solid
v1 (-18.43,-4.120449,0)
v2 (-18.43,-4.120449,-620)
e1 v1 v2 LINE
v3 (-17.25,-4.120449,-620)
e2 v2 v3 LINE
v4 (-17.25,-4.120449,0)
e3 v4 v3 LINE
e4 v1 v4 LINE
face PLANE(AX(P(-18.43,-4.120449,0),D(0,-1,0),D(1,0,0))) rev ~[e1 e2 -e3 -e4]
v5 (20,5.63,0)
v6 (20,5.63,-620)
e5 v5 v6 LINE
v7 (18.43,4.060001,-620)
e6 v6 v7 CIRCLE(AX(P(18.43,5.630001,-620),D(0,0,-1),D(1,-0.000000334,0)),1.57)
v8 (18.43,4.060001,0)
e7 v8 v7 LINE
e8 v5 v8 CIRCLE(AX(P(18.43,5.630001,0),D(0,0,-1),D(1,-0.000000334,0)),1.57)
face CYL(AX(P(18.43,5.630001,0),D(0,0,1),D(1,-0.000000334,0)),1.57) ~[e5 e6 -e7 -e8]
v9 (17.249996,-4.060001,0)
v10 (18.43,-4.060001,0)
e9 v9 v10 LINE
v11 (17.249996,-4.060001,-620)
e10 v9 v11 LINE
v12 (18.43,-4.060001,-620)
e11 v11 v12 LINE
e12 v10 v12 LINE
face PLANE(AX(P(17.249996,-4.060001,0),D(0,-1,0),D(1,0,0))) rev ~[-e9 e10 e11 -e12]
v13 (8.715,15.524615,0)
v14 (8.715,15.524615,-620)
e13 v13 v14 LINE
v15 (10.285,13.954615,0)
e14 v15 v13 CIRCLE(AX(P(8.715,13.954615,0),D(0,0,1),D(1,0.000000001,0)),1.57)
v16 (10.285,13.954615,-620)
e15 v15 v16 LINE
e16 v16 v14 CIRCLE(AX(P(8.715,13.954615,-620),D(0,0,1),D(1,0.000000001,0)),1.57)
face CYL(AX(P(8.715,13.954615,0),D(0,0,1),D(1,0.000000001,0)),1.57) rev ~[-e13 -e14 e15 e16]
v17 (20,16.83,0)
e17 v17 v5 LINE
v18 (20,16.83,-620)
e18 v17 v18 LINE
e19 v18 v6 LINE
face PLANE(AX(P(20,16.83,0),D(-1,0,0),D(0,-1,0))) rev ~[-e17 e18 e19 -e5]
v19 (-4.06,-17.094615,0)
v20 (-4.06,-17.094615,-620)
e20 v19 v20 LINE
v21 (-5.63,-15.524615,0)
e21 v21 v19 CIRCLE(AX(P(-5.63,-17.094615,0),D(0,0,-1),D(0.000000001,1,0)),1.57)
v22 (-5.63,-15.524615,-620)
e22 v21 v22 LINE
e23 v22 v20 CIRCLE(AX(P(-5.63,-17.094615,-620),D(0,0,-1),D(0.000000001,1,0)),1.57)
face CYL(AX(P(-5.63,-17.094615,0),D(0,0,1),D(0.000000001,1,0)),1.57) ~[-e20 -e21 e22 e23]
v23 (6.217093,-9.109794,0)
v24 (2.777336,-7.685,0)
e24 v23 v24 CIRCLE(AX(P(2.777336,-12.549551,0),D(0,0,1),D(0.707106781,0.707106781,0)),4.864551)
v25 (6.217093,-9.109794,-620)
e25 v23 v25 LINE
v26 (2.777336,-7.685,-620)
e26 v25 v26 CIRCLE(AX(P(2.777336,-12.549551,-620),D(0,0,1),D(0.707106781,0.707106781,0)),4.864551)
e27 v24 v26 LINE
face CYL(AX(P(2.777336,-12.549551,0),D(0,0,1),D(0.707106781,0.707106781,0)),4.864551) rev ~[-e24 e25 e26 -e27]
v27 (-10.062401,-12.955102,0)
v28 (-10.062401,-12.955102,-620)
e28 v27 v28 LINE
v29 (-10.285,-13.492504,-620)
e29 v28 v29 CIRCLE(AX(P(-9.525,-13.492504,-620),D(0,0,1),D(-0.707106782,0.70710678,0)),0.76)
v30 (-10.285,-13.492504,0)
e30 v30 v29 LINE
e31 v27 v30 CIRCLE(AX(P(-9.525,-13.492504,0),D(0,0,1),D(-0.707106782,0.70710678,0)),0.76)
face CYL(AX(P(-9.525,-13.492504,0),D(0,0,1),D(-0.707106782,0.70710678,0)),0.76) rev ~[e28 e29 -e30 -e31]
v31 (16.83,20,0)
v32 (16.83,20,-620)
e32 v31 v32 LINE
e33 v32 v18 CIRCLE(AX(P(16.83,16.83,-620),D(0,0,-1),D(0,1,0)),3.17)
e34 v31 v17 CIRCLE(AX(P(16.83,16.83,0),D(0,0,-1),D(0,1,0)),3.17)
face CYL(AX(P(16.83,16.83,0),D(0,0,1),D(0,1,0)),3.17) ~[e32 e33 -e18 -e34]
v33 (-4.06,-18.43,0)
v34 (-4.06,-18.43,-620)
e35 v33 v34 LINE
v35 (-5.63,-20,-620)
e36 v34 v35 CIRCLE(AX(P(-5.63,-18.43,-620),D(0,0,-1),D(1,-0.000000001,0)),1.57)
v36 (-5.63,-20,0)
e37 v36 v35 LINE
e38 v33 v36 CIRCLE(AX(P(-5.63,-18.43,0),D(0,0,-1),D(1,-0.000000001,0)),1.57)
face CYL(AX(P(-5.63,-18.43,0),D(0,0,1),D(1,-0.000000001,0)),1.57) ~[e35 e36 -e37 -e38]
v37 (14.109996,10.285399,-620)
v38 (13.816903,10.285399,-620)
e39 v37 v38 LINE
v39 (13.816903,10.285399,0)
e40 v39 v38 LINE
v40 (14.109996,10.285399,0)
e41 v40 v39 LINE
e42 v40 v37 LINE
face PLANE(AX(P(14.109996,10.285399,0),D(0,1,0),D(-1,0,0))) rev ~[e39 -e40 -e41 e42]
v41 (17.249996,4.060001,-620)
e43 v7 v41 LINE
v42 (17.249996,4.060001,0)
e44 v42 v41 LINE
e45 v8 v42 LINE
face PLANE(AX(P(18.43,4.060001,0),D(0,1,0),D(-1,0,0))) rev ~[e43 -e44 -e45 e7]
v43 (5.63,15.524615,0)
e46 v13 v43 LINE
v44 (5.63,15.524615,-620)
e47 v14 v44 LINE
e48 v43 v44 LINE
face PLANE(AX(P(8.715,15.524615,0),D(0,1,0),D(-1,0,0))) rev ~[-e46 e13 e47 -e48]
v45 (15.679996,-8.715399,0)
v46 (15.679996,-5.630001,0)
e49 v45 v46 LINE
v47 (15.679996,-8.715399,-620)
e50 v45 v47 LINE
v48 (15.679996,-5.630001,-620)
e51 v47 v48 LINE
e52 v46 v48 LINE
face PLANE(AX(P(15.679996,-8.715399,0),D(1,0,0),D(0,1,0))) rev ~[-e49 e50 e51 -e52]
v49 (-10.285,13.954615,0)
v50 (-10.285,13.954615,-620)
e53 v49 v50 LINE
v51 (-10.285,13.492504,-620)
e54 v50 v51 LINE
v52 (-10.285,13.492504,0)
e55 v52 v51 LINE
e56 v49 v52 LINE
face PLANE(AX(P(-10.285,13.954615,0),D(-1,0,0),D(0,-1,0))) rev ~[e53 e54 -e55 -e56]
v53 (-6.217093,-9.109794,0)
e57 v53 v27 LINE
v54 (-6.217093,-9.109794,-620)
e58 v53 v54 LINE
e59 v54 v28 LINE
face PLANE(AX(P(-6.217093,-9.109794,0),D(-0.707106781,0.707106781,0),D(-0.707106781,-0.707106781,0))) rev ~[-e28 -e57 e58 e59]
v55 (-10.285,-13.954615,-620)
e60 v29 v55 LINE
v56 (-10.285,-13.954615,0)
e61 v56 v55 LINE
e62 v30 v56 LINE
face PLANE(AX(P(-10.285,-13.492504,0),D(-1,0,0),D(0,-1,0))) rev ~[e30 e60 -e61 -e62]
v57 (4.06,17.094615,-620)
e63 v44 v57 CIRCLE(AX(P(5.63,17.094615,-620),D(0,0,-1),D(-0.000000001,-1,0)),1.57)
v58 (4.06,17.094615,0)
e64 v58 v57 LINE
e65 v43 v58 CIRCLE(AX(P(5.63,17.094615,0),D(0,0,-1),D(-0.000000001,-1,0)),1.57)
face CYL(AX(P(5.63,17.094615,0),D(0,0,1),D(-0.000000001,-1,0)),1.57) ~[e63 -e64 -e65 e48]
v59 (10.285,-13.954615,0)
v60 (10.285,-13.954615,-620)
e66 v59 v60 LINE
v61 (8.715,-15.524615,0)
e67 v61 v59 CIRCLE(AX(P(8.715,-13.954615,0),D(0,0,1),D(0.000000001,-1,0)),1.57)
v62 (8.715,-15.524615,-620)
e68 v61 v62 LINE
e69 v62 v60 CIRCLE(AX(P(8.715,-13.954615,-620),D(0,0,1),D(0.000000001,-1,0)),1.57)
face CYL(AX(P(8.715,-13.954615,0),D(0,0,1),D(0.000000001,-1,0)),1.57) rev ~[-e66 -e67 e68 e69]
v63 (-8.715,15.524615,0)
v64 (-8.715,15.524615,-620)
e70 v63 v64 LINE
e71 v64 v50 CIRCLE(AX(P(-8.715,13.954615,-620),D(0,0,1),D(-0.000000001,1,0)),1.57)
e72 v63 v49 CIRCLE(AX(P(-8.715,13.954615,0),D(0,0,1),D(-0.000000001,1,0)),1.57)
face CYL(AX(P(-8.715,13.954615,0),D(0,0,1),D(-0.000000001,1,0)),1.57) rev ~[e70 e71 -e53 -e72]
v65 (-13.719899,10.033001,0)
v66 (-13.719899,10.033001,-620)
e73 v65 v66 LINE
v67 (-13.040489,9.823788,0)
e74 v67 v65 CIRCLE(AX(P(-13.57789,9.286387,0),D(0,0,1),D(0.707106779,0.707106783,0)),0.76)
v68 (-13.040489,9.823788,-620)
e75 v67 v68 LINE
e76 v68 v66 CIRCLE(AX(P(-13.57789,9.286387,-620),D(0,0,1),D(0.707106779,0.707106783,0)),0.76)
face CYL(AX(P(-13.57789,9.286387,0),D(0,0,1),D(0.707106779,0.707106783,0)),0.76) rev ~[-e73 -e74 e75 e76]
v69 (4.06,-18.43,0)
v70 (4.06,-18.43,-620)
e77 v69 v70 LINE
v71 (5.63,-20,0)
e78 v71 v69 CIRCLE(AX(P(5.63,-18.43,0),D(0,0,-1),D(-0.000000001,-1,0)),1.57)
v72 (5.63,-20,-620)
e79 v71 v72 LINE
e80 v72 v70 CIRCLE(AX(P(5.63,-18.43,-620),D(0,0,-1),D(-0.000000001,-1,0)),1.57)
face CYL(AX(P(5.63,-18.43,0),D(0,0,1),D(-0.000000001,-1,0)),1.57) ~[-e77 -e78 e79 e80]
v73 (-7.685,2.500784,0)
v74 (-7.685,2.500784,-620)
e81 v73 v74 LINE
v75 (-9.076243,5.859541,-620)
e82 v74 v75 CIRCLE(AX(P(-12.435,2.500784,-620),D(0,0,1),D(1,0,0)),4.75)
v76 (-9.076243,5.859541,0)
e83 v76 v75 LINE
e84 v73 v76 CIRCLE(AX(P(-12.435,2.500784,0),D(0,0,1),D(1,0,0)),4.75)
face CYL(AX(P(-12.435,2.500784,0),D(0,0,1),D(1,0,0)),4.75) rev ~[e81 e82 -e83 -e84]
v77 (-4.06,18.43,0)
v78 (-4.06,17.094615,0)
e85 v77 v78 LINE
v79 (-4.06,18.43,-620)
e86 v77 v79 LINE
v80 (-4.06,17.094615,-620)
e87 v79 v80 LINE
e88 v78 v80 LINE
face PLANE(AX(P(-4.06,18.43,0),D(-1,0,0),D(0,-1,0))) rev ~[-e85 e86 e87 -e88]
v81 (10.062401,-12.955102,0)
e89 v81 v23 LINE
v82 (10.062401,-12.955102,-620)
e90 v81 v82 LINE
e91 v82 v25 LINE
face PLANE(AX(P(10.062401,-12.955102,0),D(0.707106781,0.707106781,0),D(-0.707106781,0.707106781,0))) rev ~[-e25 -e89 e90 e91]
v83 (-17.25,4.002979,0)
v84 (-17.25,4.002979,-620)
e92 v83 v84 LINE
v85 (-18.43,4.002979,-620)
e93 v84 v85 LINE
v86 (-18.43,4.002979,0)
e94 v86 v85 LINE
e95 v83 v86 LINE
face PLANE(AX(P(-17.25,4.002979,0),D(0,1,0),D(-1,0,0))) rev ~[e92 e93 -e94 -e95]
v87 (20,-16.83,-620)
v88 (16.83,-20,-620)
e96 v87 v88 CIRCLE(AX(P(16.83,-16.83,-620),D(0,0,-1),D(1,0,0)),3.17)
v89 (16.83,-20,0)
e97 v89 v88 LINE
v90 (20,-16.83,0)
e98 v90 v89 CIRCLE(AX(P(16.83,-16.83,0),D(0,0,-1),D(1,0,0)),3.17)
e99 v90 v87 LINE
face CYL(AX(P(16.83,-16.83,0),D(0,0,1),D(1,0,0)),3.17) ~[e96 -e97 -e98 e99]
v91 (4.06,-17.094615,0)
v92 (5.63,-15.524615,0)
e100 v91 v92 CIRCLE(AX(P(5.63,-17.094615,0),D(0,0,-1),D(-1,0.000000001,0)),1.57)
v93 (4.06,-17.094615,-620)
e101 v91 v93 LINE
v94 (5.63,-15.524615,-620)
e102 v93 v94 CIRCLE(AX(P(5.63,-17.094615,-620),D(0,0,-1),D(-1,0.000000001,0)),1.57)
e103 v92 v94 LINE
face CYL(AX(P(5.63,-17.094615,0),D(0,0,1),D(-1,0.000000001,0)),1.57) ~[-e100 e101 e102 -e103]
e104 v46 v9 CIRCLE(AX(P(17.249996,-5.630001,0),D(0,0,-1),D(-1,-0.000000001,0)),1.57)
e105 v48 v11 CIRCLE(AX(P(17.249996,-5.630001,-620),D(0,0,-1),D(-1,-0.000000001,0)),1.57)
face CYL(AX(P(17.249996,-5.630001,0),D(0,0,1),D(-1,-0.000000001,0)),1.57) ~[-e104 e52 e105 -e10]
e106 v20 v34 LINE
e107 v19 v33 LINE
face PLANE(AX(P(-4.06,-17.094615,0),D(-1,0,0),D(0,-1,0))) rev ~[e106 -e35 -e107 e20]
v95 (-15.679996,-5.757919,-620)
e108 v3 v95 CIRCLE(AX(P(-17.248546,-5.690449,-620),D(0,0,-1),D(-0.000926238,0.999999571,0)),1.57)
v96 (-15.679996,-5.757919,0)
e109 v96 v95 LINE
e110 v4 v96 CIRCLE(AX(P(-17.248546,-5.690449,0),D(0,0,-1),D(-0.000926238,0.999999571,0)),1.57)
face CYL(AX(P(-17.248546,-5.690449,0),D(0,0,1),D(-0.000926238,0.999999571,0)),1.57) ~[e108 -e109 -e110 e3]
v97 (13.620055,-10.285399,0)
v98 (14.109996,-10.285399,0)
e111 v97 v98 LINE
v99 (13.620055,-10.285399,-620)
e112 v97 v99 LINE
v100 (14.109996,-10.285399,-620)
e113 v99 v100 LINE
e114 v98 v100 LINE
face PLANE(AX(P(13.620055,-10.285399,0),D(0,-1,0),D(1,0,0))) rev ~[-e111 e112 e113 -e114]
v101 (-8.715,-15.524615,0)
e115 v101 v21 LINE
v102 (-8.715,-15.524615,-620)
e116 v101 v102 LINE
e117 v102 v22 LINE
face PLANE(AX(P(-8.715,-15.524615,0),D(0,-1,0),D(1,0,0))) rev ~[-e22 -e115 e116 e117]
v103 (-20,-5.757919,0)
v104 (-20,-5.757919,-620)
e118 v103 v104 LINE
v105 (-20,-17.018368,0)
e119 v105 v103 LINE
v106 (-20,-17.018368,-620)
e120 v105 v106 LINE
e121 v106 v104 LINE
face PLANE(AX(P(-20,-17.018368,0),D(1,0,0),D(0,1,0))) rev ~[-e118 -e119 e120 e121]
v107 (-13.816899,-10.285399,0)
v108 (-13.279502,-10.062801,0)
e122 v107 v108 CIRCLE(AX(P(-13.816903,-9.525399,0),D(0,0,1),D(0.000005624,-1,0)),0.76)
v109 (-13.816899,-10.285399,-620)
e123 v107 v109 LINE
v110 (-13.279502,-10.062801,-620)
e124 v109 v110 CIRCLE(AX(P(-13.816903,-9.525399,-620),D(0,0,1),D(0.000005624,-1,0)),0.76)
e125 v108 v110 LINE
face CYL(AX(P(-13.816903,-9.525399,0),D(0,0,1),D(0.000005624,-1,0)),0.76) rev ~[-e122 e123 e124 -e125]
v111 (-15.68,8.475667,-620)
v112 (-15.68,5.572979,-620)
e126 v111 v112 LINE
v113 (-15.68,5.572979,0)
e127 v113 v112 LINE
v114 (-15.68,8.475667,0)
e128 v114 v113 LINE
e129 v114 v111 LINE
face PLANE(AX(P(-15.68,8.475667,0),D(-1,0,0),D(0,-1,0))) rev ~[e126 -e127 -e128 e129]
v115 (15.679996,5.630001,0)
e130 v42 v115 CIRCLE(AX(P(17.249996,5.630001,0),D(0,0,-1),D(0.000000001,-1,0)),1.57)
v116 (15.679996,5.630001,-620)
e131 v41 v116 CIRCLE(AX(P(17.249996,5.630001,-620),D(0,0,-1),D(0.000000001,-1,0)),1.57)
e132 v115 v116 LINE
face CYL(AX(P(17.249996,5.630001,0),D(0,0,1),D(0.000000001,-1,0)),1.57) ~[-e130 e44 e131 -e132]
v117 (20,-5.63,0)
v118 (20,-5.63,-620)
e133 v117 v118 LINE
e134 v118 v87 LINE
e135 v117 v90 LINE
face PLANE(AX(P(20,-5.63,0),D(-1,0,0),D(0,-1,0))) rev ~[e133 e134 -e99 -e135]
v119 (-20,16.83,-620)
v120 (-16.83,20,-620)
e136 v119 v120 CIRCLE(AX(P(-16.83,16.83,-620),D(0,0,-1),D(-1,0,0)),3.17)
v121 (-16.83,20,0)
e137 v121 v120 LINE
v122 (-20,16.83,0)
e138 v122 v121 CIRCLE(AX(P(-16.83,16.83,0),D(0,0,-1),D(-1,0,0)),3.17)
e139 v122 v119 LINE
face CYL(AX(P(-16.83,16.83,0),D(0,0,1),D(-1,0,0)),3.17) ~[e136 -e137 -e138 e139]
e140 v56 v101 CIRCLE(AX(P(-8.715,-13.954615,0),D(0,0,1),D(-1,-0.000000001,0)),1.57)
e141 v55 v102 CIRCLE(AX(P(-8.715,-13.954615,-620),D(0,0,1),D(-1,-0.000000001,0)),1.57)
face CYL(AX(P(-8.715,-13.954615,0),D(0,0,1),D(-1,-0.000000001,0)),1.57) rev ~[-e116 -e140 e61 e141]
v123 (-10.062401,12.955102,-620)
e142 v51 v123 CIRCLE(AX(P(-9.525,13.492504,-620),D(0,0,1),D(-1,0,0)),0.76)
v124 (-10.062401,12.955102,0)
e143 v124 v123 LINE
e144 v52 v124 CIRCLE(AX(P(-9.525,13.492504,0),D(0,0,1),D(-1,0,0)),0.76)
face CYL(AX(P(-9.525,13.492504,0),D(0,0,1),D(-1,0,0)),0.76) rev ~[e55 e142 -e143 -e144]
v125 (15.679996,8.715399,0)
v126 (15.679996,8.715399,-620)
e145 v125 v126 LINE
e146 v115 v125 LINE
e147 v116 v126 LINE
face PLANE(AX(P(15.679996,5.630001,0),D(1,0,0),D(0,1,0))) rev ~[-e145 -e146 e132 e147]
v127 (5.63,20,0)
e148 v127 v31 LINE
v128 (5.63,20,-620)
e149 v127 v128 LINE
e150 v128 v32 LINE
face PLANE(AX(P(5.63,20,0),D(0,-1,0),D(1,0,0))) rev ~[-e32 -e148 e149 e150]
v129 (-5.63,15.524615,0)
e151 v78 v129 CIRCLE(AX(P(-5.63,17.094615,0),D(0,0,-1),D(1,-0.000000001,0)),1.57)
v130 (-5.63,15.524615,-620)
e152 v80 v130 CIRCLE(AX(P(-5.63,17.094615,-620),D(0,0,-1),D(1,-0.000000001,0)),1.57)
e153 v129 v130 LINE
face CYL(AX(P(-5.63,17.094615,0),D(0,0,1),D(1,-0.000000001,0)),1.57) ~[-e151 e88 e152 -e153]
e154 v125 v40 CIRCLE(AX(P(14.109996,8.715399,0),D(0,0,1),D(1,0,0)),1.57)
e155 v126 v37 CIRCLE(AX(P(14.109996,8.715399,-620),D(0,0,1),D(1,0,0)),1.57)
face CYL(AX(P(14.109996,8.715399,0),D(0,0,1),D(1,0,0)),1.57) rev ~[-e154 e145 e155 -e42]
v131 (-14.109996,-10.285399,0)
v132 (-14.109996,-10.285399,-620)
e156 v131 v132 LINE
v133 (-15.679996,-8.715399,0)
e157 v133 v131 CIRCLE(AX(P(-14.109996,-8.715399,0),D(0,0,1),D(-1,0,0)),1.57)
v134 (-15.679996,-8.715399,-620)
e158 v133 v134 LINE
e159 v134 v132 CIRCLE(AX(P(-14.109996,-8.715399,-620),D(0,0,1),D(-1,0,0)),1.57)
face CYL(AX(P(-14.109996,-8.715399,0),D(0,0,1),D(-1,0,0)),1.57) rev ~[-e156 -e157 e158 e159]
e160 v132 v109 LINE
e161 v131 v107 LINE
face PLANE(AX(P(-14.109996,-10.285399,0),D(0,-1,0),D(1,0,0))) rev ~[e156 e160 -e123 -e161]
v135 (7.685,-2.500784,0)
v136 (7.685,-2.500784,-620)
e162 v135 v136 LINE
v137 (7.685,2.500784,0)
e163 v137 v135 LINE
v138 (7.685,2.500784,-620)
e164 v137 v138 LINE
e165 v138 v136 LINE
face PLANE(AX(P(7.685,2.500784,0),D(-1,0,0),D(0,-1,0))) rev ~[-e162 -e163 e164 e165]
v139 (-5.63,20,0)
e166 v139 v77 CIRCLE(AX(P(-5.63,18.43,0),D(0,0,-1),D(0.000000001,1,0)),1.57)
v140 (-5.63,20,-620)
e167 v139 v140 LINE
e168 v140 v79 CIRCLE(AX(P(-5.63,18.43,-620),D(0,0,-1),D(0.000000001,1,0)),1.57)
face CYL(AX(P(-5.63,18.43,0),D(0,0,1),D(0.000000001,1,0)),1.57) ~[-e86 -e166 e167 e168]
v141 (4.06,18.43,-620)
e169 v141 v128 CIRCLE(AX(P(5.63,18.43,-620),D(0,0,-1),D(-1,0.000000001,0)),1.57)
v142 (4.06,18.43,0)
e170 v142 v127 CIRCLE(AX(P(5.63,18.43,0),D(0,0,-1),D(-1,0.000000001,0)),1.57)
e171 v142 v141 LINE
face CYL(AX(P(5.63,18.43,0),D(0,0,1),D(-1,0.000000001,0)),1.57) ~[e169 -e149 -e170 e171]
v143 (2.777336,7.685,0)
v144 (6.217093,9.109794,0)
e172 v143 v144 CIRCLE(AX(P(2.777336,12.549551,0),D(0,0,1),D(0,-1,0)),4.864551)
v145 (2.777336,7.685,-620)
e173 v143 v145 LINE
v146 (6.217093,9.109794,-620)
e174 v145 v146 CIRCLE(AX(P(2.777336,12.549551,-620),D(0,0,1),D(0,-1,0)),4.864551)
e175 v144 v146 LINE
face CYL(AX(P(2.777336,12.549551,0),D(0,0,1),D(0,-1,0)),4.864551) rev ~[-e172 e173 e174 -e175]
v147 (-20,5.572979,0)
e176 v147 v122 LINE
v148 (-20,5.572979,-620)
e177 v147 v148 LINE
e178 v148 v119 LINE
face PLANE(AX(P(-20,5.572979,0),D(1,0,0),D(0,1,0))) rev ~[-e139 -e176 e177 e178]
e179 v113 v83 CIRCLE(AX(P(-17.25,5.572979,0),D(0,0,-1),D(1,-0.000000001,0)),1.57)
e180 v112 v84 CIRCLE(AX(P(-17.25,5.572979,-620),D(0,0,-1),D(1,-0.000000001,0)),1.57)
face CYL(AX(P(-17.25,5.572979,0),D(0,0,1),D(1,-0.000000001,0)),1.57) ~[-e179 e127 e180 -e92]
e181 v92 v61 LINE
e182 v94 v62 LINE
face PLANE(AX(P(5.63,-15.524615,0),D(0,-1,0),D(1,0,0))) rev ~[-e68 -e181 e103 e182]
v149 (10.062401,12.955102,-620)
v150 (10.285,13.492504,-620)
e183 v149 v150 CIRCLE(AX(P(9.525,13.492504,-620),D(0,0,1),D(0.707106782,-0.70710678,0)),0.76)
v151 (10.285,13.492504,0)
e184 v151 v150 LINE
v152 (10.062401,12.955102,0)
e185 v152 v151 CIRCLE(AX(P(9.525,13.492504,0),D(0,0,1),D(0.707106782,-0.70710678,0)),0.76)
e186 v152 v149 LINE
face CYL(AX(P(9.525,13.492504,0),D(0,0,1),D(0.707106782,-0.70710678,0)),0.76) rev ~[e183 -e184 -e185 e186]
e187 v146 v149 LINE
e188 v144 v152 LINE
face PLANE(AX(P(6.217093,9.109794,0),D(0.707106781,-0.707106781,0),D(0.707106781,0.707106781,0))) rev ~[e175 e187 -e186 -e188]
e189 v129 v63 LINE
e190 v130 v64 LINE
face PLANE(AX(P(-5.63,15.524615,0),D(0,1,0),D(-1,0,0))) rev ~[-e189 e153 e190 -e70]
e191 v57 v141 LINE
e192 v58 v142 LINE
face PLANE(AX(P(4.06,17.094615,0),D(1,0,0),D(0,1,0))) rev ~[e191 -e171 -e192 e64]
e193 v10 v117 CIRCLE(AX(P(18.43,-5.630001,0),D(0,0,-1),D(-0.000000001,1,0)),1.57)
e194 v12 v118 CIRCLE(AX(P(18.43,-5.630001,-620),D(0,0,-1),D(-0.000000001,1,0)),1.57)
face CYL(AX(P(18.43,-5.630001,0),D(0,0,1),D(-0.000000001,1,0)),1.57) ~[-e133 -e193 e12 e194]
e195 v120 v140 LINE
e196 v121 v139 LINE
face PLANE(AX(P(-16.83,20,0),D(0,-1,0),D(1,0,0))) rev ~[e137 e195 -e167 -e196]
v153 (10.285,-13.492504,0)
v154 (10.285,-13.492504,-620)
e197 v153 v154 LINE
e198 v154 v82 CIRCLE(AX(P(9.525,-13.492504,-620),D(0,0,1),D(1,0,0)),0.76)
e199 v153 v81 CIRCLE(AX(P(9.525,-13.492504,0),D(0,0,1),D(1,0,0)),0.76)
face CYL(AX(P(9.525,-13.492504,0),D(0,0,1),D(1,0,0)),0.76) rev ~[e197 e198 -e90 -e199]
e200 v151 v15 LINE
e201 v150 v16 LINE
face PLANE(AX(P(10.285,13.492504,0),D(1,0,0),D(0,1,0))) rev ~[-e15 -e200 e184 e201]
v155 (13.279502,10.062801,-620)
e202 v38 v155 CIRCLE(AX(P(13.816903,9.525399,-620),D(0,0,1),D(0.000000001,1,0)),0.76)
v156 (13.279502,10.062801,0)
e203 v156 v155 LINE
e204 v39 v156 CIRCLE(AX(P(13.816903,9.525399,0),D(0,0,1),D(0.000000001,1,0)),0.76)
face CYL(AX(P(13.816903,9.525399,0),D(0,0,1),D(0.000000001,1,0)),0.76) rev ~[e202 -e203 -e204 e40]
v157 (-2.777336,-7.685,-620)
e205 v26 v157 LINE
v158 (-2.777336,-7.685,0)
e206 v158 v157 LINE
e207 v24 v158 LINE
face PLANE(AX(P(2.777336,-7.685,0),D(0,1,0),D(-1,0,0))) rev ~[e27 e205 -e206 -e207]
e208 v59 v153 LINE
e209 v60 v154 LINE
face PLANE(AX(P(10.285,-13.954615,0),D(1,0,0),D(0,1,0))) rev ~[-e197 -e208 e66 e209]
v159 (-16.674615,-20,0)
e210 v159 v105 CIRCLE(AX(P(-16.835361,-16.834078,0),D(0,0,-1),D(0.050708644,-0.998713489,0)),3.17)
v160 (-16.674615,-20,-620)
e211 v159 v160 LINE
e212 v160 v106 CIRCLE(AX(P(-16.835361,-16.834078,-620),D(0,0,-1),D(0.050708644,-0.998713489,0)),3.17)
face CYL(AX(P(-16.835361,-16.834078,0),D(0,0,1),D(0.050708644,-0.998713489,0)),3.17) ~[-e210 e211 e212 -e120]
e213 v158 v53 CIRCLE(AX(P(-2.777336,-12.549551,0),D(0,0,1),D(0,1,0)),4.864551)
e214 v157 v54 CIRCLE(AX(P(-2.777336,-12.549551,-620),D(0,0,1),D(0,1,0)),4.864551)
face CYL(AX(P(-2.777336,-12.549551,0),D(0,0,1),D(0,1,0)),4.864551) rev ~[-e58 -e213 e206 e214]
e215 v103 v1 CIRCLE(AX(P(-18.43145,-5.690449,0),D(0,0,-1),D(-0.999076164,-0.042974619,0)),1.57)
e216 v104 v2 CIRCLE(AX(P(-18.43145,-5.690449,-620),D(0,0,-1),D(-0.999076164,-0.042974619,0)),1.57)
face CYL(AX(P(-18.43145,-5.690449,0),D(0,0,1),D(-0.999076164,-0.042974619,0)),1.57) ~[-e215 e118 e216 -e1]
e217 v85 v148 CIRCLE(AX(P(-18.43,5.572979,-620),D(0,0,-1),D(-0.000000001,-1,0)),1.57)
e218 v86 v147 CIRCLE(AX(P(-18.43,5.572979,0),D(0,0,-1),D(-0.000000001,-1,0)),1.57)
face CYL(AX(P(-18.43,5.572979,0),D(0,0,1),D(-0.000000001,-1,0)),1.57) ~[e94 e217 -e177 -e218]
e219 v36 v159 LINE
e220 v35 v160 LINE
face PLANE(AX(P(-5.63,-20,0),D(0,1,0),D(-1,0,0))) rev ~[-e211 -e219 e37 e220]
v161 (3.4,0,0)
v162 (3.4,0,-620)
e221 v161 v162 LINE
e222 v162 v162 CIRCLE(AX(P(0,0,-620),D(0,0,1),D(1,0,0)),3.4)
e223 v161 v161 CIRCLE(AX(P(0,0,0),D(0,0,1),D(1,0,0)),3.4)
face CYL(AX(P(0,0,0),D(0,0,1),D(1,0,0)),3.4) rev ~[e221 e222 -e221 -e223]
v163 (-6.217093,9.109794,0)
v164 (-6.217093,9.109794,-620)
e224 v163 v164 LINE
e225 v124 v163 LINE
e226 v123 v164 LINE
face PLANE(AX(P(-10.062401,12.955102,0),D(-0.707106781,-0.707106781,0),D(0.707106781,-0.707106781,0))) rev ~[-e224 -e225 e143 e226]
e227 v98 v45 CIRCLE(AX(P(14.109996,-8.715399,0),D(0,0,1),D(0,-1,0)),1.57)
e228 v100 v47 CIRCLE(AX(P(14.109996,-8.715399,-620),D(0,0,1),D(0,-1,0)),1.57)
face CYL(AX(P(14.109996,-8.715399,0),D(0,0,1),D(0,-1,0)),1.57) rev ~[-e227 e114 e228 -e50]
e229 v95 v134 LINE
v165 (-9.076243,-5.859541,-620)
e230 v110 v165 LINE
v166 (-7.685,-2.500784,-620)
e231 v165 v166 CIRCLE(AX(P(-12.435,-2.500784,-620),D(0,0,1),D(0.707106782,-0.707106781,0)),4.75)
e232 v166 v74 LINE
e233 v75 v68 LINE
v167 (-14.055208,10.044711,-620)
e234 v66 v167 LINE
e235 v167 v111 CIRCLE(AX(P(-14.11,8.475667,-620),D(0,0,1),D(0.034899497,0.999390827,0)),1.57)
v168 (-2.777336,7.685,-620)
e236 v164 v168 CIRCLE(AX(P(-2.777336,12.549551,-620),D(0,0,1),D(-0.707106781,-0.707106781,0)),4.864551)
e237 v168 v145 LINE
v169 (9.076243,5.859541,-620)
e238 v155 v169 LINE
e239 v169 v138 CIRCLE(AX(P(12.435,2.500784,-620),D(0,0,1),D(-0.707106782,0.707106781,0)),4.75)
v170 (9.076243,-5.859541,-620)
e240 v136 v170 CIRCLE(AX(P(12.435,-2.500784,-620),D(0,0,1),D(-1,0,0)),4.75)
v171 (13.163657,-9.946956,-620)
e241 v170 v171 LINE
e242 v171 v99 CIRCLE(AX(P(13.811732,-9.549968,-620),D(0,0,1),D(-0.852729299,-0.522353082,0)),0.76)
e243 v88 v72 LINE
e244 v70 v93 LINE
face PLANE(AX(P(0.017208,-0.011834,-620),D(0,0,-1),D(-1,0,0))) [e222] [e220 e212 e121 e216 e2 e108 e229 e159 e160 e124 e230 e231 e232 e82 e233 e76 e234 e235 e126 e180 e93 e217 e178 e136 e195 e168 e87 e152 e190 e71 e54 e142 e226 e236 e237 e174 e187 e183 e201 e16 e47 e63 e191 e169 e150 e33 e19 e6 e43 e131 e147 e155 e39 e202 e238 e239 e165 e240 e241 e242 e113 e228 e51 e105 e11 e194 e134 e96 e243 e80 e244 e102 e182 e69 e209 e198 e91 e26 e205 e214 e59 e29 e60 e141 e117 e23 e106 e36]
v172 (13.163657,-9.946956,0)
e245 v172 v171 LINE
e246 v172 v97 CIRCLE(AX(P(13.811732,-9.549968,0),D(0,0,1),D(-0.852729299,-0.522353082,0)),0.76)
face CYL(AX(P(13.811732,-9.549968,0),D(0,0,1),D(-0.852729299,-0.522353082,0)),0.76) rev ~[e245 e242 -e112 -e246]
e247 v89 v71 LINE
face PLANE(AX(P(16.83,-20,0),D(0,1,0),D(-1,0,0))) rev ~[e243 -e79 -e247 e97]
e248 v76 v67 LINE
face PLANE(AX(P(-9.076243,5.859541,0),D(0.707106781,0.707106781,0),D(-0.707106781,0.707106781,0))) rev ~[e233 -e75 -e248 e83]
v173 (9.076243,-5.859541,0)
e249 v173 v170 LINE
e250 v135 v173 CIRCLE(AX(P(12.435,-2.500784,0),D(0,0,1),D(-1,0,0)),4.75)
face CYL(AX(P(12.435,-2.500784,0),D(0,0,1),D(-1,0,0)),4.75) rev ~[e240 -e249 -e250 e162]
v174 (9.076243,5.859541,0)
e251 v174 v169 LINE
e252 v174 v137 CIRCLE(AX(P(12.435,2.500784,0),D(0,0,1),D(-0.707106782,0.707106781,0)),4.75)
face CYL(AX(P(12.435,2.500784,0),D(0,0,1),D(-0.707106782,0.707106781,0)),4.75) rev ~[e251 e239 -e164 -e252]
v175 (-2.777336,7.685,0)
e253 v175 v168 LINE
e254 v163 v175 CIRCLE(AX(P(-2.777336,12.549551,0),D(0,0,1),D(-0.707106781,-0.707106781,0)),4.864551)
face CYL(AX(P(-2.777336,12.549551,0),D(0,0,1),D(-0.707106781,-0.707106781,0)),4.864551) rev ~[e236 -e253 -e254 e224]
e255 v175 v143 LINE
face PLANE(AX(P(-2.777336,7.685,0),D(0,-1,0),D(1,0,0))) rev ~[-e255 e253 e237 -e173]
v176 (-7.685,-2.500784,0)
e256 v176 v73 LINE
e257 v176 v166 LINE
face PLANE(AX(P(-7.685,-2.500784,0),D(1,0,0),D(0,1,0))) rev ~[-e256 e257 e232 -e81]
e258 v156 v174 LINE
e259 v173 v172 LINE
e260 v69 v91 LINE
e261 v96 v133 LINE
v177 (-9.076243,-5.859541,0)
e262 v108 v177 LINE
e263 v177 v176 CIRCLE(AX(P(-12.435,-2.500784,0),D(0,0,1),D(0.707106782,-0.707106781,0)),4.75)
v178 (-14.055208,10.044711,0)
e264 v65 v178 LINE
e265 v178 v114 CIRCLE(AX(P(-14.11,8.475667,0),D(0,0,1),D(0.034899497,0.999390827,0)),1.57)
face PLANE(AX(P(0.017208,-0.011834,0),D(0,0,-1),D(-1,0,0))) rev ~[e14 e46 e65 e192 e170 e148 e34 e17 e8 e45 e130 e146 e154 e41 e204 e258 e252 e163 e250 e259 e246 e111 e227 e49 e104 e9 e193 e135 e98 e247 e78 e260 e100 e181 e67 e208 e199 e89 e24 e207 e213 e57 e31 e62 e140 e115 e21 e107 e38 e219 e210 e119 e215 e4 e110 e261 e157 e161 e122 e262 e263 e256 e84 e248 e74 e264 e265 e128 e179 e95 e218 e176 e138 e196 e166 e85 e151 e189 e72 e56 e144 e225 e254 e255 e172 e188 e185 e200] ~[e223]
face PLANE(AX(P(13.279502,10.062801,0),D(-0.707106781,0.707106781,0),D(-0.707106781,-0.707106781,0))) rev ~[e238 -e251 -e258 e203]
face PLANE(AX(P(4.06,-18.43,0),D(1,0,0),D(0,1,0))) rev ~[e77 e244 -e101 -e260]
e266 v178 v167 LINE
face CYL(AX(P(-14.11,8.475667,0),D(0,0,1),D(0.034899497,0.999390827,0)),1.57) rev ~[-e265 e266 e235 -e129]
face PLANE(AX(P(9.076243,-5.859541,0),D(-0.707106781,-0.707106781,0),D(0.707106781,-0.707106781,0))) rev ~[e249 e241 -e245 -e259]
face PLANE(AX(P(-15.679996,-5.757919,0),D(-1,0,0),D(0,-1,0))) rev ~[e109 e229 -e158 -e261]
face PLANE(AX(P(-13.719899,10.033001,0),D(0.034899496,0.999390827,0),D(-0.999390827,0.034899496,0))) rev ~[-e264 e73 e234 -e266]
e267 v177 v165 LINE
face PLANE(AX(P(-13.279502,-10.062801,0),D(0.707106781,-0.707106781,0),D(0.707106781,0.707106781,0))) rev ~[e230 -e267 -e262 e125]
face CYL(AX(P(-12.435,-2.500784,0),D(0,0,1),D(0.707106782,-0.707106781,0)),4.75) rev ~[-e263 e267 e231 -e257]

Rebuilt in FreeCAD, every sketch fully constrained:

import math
import FreeCAD as App
import Part
import Sketcher

V = App.Vector
Q = App.Units.Quantity

doc = App.newDocument("Part")
body = doc.addObject("PartDesign::Body", "Body")

# Sketch on XY plane
sketch1 = body.newObject("Sketcher::SketchObject", "Sketch")
sketch1.AttachmentSupport = (doc.getObject("XY_Plane"), [""])
sketch1.MapMode = "FlatFace"
sketch1.addGeometry([
    Part.LineSegment(V(-5.63, -15.52, 0), V(-8.71, -15.52, 0)),  # 0
    Part.ArcOfCircle(Part.Circle(V(-8.71, -13.95, 0), V(0, 0, 1), 1.57), math.radians(-180), math.radians(-90)),  # 1
    Part.LineSegment(V(-10.29, -13.95, 0), V(-10.29, -13.49, 0)),  # 2
    Part.ArcOfCircle(Part.Circle(V(-9.52, -13.49, 0), V(0, 0, 1), 0.76), math.radians(135), math.radians(180)),  # 3
    Part.LineSegment(V(-10.06, -12.96, 0), V(-6.22, -9.11, 0)),  # 4
    Part.ArcOfCircle(Part.Circle(V(-2.78, -12.55, 0), V(0, 0, 1), 4.86), math.radians(90), math.radians(135)),  # 5
    Part.LineSegment(V(-2.78, -7.68, 0), V(2.78, -7.68, 0)),  # 6
    Part.ArcOfCircle(Part.Circle(V(2.78, -12.55, 0), V(0, 0, 1), 4.86), math.radians(45), math.radians(90)),  # 7
    Part.LineSegment(V(6.22, -9.11, 0), V(10.06, -12.96, 0)),  # 8
    Part.ArcOfCircle(Part.Circle(V(9.52, -13.49, 0), V(0, 0, 1), 0.76), math.radians(0), math.radians(45)),  # 9
    Part.LineSegment(V(10.29, -13.49, 0), V(10.29, -13.95, 0)),  # 10
    Part.ArcOfCircle(Part.Circle(V(8.71, -13.95, 0), V(0, 0, 1), 1.57), math.radians(-90), math.radians(0)),  # 11
    Part.LineSegment(V(8.71, -15.52, 0), V(5.63, -15.52, 0)),  # 12
    Part.ArcOfCircle(Part.Circle(V(5.63, -17.09, 0), V(0, 0, 1), 1.57), math.radians(90), math.radians(180)),  # 13
    Part.LineSegment(V(4.06, -17.09, 0), V(4.06, -18.43, 0)),  # 14
    Part.ArcOfCircle(Part.Circle(V(5.63, -18.43, 0), V(0, 0, 1), 1.57), math.radians(-180), math.radians(-90)),  # 15
    Part.LineSegment(V(5.63, -20, 0), V(16.83, -20, 0)),  # 16
    Part.ArcOfCircle(Part.Circle(V(16.83, -16.83, 0), V(0, 0, 1), 3.17), math.radians(-90), math.radians(0)),  # 17
    Part.LineSegment(V(20, -16.83, 0), V(20, -5.63, 0)),  # 18
    Part.ArcOfCircle(Part.Circle(V(18.43, -5.63, 0), V(0, 0, 1), 1.57), math.radians(0), math.radians(90)),  # 19
    Part.LineSegment(V(18.43, -4.06, 0), V(17.25, -4.06, 0)),  # 20
    Part.ArcOfCircle(Part.Circle(V(17.25, -5.63, 0), V(0, 0, 1), 1.57), math.radians(90), math.radians(180)),  # 21
    Part.LineSegment(V(15.68, -5.63, 0), V(15.68, -8.72, 0)),  # 22
    Part.ArcOfCircle(Part.Circle(V(14.11, -8.72, 0), V(0, 0, 1), 1.57), math.radians(-90), math.radians(0)),  # 23
    Part.LineSegment(V(14.11, -10.29, 0), V(13.62, -10.29, 0)),  # 24
    Part.ArcOfCircle(Part.Circle(V(13.81, -9.55, 0), V(0, 0, 1), 0.76), math.radians(-149), math.radians(-105)),  # 25
    Part.LineSegment(V(13.16, -9.95, 0), V(9.08, -5.86, 0)),  # 26
    Part.ArcOfCircle(Part.Circle(V(12.44, -2.5, 0), V(0, 0, 1), 4.75), math.radians(-180), math.radians(-135)),  # 27
    Part.LineSegment(V(7.68, -2.5, 0), V(7.68, 2.5, 0)),  # 28
    Part.ArcOfCircle(Part.Circle(V(12.44, 2.5, 0), V(0, 0, 1), 4.75), math.radians(135), math.radians(180)),  # 29
    Part.LineSegment(V(9.08, 5.86, 0), V(13.28, 10.06, 0)),  # 30
    Part.ArcOfCircle(Part.Circle(V(13.82, 9.53, 0), V(0, 0, 1), 0.76), math.radians(90), math.radians(135)),  # 31
    Part.LineSegment(V(13.82, 10.29, 0), V(14.11, 10.29, 0)),  # 32
    Part.ArcOfCircle(Part.Circle(V(14.11, 8.72, 0), V(0, 0, 1), 1.57), math.radians(0), math.radians(90)),  # 33
    Part.LineSegment(V(15.68, 8.72, 0), V(15.68, 5.63, 0)),  # 34
    Part.ArcOfCircle(Part.Circle(V(17.25, 5.63, 0), V(0, 0, 1), 1.57), math.radians(180), math.radians(270)),  # 35
    Part.LineSegment(V(17.25, 4.06, 0), V(18.43, 4.06, 0)),  # 36
    Part.ArcOfCircle(Part.Circle(V(18.43, 5.63, 0), V(0, 0, 1), 1.57), math.radians(-90), math.radians(0)),  # 37
    Part.LineSegment(V(20, 5.63, 0), V(20, 16.83, 0)),  # 38
    Part.ArcOfCircle(Part.Circle(V(16.83, 16.83, 0), V(0, 0, 1), 3.17), math.radians(0), math.radians(90)),  # 39
    Part.LineSegment(V(16.83, 20, 0), V(5.63, 20, 0)),  # 40
    Part.ArcOfCircle(Part.Circle(V(5.63, 18.43, 0), V(0, 0, 1), 1.57), math.radians(90), math.radians(180)),  # 41
    Part.LineSegment(V(4.06, 18.43, 0), V(4.06, 17.09, 0)),  # 42
    Part.ArcOfCircle(Part.Circle(V(5.63, 17.09, 0), V(0, 0, 1), 1.57), math.radians(-180), math.radians(-90)),  # 43
    Part.LineSegment(V(5.63, 15.52, 0), V(8.71, 15.52, 0)),  # 44
    Part.ArcOfCircle(Part.Circle(V(8.71, 13.95, 0), V(0, 0, 1), 1.57), math.radians(0), math.radians(90)),  # 45
    Part.LineSegment(V(10.29, 13.95, 0), V(10.29, 13.49, 0)),  # 46
    Part.ArcOfCircle(Part.Circle(V(9.52, 13.49, 0), V(0, 0, 1), 0.76), math.radians(-45), math.radians(0)),  # 47
    Part.LineSegment(V(10.06, 12.96, 0), V(6.22, 9.11, 0)),  # 48
    Part.ArcOfCircle(Part.Circle(V(2.78, 12.55, 0), V(0, 0, 1), 4.86), math.radians(-90), math.radians(-45)),  # 49
    Part.LineSegment(V(2.78, 7.68, 0), V(-2.78, 7.68, 0)),  # 50
    Part.ArcOfCircle(Part.Circle(V(-2.78, 12.55, 0), V(0, 0, 1), 4.86), math.radians(-135), math.radians(-90)),  # 51
    Part.LineSegment(V(-6.22, 9.11, 0), V(-10.06, 12.96, 0)),  # 52
    Part.ArcOfCircle(Part.Circle(V(-9.52, 13.49, 0), V(0, 0, 1), 0.76), math.radians(180), math.radians(225)),  # 53
    Part.LineSegment(V(-10.29, 13.49, 0), V(-10.29, 13.95, 0)),  # 54
    Part.ArcOfCircle(Part.Circle(V(-8.71, 13.95, 0), V(0, 0, 1), 1.57), math.radians(90), math.radians(180)),  # 55
    Part.LineSegment(V(-8.71, 15.52, 0), V(-5.63, 15.52, 0)),  # 56
    Part.ArcOfCircle(Part.Circle(V(-5.63, 17.09, 0), V(0, 0, 1), 1.57), math.radians(-90), math.radians(0)),  # 57
    Part.LineSegment(V(-4.06, 17.09, 0), V(-4.06, 18.43, 0)),  # 58
    Part.ArcOfCircle(Part.Circle(V(-5.63, 18.43, 0), V(0, 0, 1), 1.57), math.radians(0), math.radians(90)),  # 59
    Part.LineSegment(V(-5.63, 20, 0), V(-16.83, 20, 0)),  # 60
    Part.ArcOfCircle(Part.Circle(V(-16.83, 16.83, 0), V(0, 0, 1), 3.17), math.radians(90), math.radians(180)),  # 61
    Part.LineSegment(V(-20, 16.83, 0), V(-20, 5.57, 0)),  # 62
    Part.ArcOfCircle(Part.Circle(V(-18.43, 5.57, 0), V(0, 0, 1), 1.57), math.radians(-180), math.radians(-90)),  # 63
    Part.LineSegment(V(-18.43, 4, 0), V(-17.25, 4, 0)),  # 64
    Part.ArcOfCircle(Part.Circle(V(-17.25, 5.57, 0), V(0, 0, 1), 1.57), math.radians(-90), math.radians(0)),  # 65
    Part.LineSegment(V(-15.68, 5.57, 0), V(-15.68, 8.48, 0)),  # 66
    Part.ArcOfCircle(Part.Circle(V(-14.11, 8.48, 0), V(0, 0, 1), 1.57), math.radians(88), math.radians(180)),  # 67
    Part.LineSegment(V(-14.06, 10.04, 0), V(-13.72, 10.03, 0)),  # 68
    Part.ArcOfCircle(Part.Circle(V(-13.58, 9.29, 0), V(0, 0, 1), 0.76), math.radians(45), math.radians(101)),  # 69
    Part.LineSegment(V(-13.04, 9.82, 0), V(-9.08, 5.86, 0)),  # 70
    Part.ArcOfCircle(Part.Circle(V(-12.44, 2.5, 0), V(0, 0, 1), 4.75), math.radians(0), math.radians(45)),  # 71
    Part.LineSegment(V(-7.68, 2.5, 0), V(-7.68, -2.5, 0)),  # 72
    Part.ArcOfCircle(Part.Circle(V(-12.44, -2.5, 0), V(0, 0, 1), 4.75), math.radians(-45), math.radians(0)),  # 73
    Part.LineSegment(V(-9.08, -5.86, 0), V(-13.28, -10.06, 0)),  # 74
    Part.ArcOfCircle(Part.Circle(V(-13.82, -9.53, 0), V(0, 0, 1), 0.76), math.radians(-90), math.radians(-45)),  # 75
    Part.LineSegment(V(-13.82, -10.29, 0), V(-14.11, -10.29, 0)),  # 76
    Part.ArcOfCircle(Part.Circle(V(-14.11, -8.72, 0), V(0, 0, 1), 1.57), math.radians(180), math.radians(270)),  # 77
    Part.LineSegment(V(-15.68, -8.72, 0), V(-15.68, -5.76, 0)),  # 78
    Part.ArcOfCircle(Part.Circle(V(-17.25, -5.69, 0), V(0, 0, 1), 1.57), math.radians(-2), math.radians(90)),  # 79
    Part.LineSegment(V(-17.25, -4.12, 0), V(-18.43, -4.12, 0)),  # 80
    Part.ArcOfCircle(Part.Circle(V(-18.43, -5.69, 0), V(0, 0, 1), 1.57), math.radians(90), math.radians(182)),  # 81
    Part.LineSegment(V(-20, -5.76, 0), V(-20, -17.02, 0)),  # 82
    Part.ArcOfCircle(Part.Circle(V(-16.84, -16.83, 0), V(0, 0, 1), 3.17), math.radians(-177), math.radians(-87)),  # 83
    Part.LineSegment(V(-16.67, -20, 0), V(-5.63, -20, 0)),  # 84
    Part.ArcOfCircle(Part.Circle(V(-5.63, -18.43, 0), V(0, 0, 1), 1.57), math.radians(-90), math.radians(0)),  # 85
    Part.LineSegment(V(-4.06, -18.43, 0), V(-4.06, -17.09, 0)),  # 86
    Part.ArcOfCircle(Part.Circle(V(-5.63, -17.09, 0), V(0, 0, 1), 1.57), math.radians(0), math.radians(90)),  # 87
    Part.Circle(V(0, 0, 0), V(0, 0, 1), 3.4),  # 88
], False)
sketch1.addConstraint([
    Sketcher.Constraint("Tangent", 0, 2, 1, 2),
    Sketcher.Constraint("Tangent", 1, 1, 2, 1),
    Sketcher.Constraint("Tangent", 2, 2, 3, 2),
    Sketcher.Constraint("Tangent", 3, 1, 4, 1),
    Sketcher.Constraint("Tangent", 4, 2, 5, 2),
    Sketcher.Constraint("Tangent", 5, 1, 6, 1),
    Sketcher.Constraint("Tangent", 6, 2, 7, 2),
    Sketcher.Constraint("Tangent", 7, 1, 8, 1),
    Sketcher.Constraint("Tangent", 8, 2, 9, 2),
    Sketcher.Constraint("Tangent", 9, 1, 10, 1),
    Sketcher.Constraint("Tangent", 10, 2, 11, 2),
    Sketcher.Constraint("Tangent", 11, 1, 12, 1),
    Sketcher.Constraint("Tangent", 12, 2, 13, 1),
    Sketcher.Constraint("Tangent", 13, 2, 14, 1),
    Sketcher.Constraint("Tangent", 14, 2, 15, 1),
    Sketcher.Constraint("Tangent", 15, 2, 16, 1),
    Sketcher.Constraint("Tangent", 16, 2, 17, 1),
    Sketcher.Constraint("Tangent", 17, 2, 18, 1),
    Sketcher.Constraint("Tangent", 18, 2, 19, 1),
    Sketcher.Constraint("Tangent", 19, 2, 20, 1),
    Sketcher.Constraint("Tangent", 20, 2, 21, 1),
    Sketcher.Constraint("Tangent", 21, 2, 22, 1),
    Sketcher.Constraint("Tangent", 22, 2, 23, 2),
    Sketcher.Constraint("Tangent", 23, 1, 24, 1),
    Sketcher.Constraint("Coincident", 24, 2, 25, 2),
    Sketcher.Constraint("Coincident", 25, 1, 26, 1),
    Sketcher.Constraint("Tangent", 26, 2, 27, 2),
    Sketcher.Constraint("Tangent", 27, 1, 28, 1),
    Sketcher.Constraint("Tangent", 28, 2, 29, 2),
    Sketcher.Constraint("Tangent", 29, 1, 30, 1),
    Sketcher.Constraint("Tangent", 30, 2, 31, 2),
    Sketcher.Constraint("Tangent", 31, 1, 32, 1),
    Sketcher.Constraint("Tangent", 32, 2, 33, 2),
    Sketcher.Constraint("Tangent", 33, 1, 34, 1),
    Sketcher.Constraint("Tangent", 34, 2, 35, 1),
    Sketcher.Constraint("Tangent", 35, 2, 36, 1),
    Sketcher.Constraint("Tangent", 36, 2, 37, 1),
    Sketcher.Constraint("Tangent", 37, 2, 38, 1),
    Sketcher.Constraint("Tangent", 38, 2, 39, 1),
    Sketcher.Constraint("Tangent", 39, 2, 40, 1),
    Sketcher.Constraint("Tangent", 40, 2, 41, 1),
    Sketcher.Constraint("Tangent", 41, 2, 42, 1),
    Sketcher.Constraint("Tangent", 42, 2, 43, 1),
    Sketcher.Constraint("Tangent", 43, 2, 44, 1),
    Sketcher.Constraint("Tangent", 44, 2, 45, 2),
    Sketcher.Constraint("Tangent", 45, 1, 46, 1),
    Sketcher.Constraint("Tangent", 46, 2, 47, 2),
    Sketcher.Constraint("Tangent", 47, 1, 48, 1),
    Sketcher.Constraint("Tangent", 48, 2, 49, 2),
    Sketcher.Constraint("Tangent", 49, 1, 50, 1),
    Sketcher.Constraint("Tangent", 50, 2, 51, 2),
    Sketcher.Constraint("Tangent", 51, 1, 52, 1),
    Sketcher.Constraint("Tangent", 52, 2, 53, 2),
    Sketcher.Constraint("Tangent", 53, 1, 54, 1),
    Sketcher.Constraint("Tangent", 54, 2, 55, 2),
    Sketcher.Constraint("Tangent", 55, 1, 56, 1),
    Sketcher.Constraint("Tangent", 56, 2, 57, 1),
    Sketcher.Constraint("Tangent", 57, 2, 58, 1),
    Sketcher.Constraint("Tangent", 58, 2, 59, 1),
    Sketcher.Constraint("Tangent", 59, 2, 60, 1),
    Sketcher.Constraint("Tangent", 60, 2, 61, 1),
    Sketcher.Constraint("Tangent", 61, 2, 62, 1),
    Sketcher.Constraint("Tangent", 62, 2, 63, 1),
    Sketcher.Constraint("Tangent", 63, 2, 64, 1),
    Sketcher.Constraint("Tangent", 64, 2, 65, 1),
    Sketcher.Constraint("Tangent", 65, 2, 66, 1),
    Sketcher.Constraint("Tangent", 66, 2, 67, 2),
    Sketcher.Constraint("Tangent", 67, 1, 68, 1),
    Sketcher.Constraint("Coincident", 68, 2, 69, 2),
    Sketcher.Constraint("Tangent", 69, 1, 70, 1),
    Sketcher.Constraint("Tangent", 70, 2, 71, 2),
    Sketcher.Constraint("Tangent", 71, 1, 72, 1),
    Sketcher.Constraint("Tangent", 72, 2, 73, 2),
    Sketcher.Constraint("Tangent", 73, 1, 74, 1),
    Sketcher.Constraint("Tangent", 74, 2, 75, 2),
    Sketcher.Constraint("Coincident", 75, 1, 76, 1),
    Sketcher.Constraint("Tangent", 76, 2, 77, 2),
    Sketcher.Constraint("Tangent", 77, 1, 78, 1),
    Sketcher.Constraint("Coincident", 78, 2, 79, 1),
    Sketcher.Constraint("Coincident", 79, 2, 80, 1),
    Sketcher.Constraint("Coincident", 80, 2, 81, 1),
    Sketcher.Constraint("Coincident", 81, 2, 82, 1),
    Sketcher.Constraint("Coincident", 82, 2, 83, 1),
    Sketcher.Constraint("Coincident", 83, 2, 84, 1),
    Sketcher.Constraint("Tangent", 84, 2, 85, 1),
    Sketcher.Constraint("Tangent", 85, 2, 86, 1),
    Sketcher.Constraint("Tangent", 86, 2, 87, 1),
    Sketcher.Constraint("Tangent", 87, 2, 0, 1),
    Sketcher.Constraint("Horizontal", 0),
    Sketcher.Constraint("Vertical", 2),
    Sketcher.Constraint("Horizontal", 6),
    Sketcher.Constraint("Vertical", 10),
    Sketcher.Constraint("Horizontal", 12),
    Sketcher.Constraint("Vertical", 14),
    Sketcher.Constraint("Horizontal", 16),
    Sketcher.Constraint("Vertical", 18),
    Sketcher.Constraint("Horizontal", 20),
    Sketcher.Constraint("Vertical", 22),
    Sketcher.Constraint("Horizontal", 24),
    Sketcher.Constraint("Vertical", 28),
    Sketcher.Constraint("Horizontal", 32),
    Sketcher.Constraint("Vertical", 34),
    Sketcher.Constraint("Horizontal", 36),
    Sketcher.Constraint("Vertical", 38),
    Sketcher.Constraint("Horizontal", 40),
    Sketcher.Constraint("Vertical", 42),
    Sketcher.Constraint("Horizontal", 44),
    Sketcher.Constraint("Vertical", 46),
    Sketcher.Constraint("Horizontal", 50),
    Sketcher.Constraint("Vertical", 54),
    Sketcher.Constraint("Horizontal", 56),
    Sketcher.Constraint("Vertical", 58),
    Sketcher.Constraint("Horizontal", 60),
    Sketcher.Constraint("Vertical", 62),
    Sketcher.Constraint("Horizontal", 64),
    Sketcher.Constraint("Vertical", 66),
    Sketcher.Constraint("Vertical", 72),
    Sketcher.Constraint("Horizontal", 76),
    Sketcher.Constraint("Vertical", 78),
    Sketcher.Constraint("Horizontal", 80),
    Sketcher.Constraint("Vertical", 82),
    Sketcher.Constraint("Horizontal", 84),
    Sketcher.Constraint("Vertical", 86),
    Sketcher.Constraint("Coincident", 88, 3, -1, 1),
    Sketcher.Constraint("Equal", 5, 7),
    Sketcher.Constraint("Equal", 3, 9),
    Sketcher.Constraint("Equal", 1, 11),
    Sketcher.Constraint("Equal", 11, 13),
    Sketcher.Constraint("Equal", 13, 15),
    Sketcher.Constraint("Equal", 15, 19),
    Sketcher.Constraint("Equal", 19, 21),
    Sketcher.Constraint("Equal", 21, 23),
    Sketcher.Constraint("Equal", 9, 25),
    Sketcher.Constraint("Equal", 27, 29),
    Sketcher.Constraint("Equal", 25, 31),
    Sketcher.Constraint("Equal", 23, 33),
    Sketcher.Constraint("Equal", 33, 35),
    Sketcher.Constraint("Equal", 35, 37),
    Sketcher.Constraint("Equal", 17, 39),
    Sketcher.Constraint("Equal", 37, 41),
    Sketcher.Constraint("Equal", 41, 43),
    Sketcher.Constraint("Equal", 43, 45),
    Sketcher.Constraint("Equal", 31, 47),
    Sketcher.Constraint("Equal", 7, 49),
    Sketcher.Constraint("Equal", 49, 51),
    Sketcher.Constraint("Equal", 47, 53),
    Sketcher.Constraint("Equal", 45, 55),
    Sketcher.Constraint("Equal", 55, 57),
    Sketcher.Constraint("Equal", 57, 59),
    Sketcher.Constraint("Equal", 39, 61),
    Sketcher.Constraint("Equal", 59, 63),
    Sketcher.Constraint("Equal", 63, 65),
    Sketcher.Constraint("Equal", 65, 67),
    Sketcher.Constraint("Equal", 53, 69),
    Sketcher.Constraint("Equal", 29, 71),
    Sketcher.Constraint("Equal", 71, 73),
    Sketcher.Constraint("Equal", 69, 75),
    Sketcher.Constraint("Equal", 67, 77),
    Sketcher.Constraint("Equal", 77, 79),
    Sketcher.Constraint("Equal", 79, 81),
    Sketcher.Constraint("Equal", 61, 83),
    Sketcher.Constraint("Equal", 81, 85),
    Sketcher.Constraint("Equal", 85, 87),
    Sketcher.Constraint("Symmetric", 1, 3, 45, 3, -1, 1),
    Sketcher.Constraint("Symmetric", 5, 3, 49, 3, -1, 1),
    Sketcher.Constraint("Symmetric", 9, 3, 53, 3, -1, 1),
    Sketcher.Constraint("Symmetric", 13, 3, 57, 3, -1, 1),
    Sketcher.Constraint("Symmetric", 17, 3, 61, 3, -1, 1),
    Sketcher.Constraint("Symmetric", 27, 3, 71, 3, -1, 1),
    Sketcher.Constraint("Symmetric", 31, 3, 75, 3, -1, 1),
    Sketcher.Constraint("Symmetric", 41, 3, 85, 3, -1, 1),
    Sketcher.Constraint("Symmetric", 3, 3, 9, 3, -2),
    Sketcher.Constraint("Symmetric", 43, 3, 57, 3, -2),
    Sketcher.Constraint("Symmetric", 39, 3, 61, 3, -2),
    Sketcher.Constraint("Symmetric", 23, 3, 77, 3, -2),
    Sketcher.Constraint("Symmetric", 48, 2, 51, 1, -2),
    Sketcher.Constraint("Symmetric", 29, 1, 70, 2, -2),
    Sketcher.Constraint("Symmetric", 26, 2, 73, 1, -2),
    Sketcher.Constraint("Symmetric", 21, 3, 35, 3, -1),
    Sketcher.Constraint("Perpendicular", 4, 8),
    Sketcher.Constraint("Parallel", 8, 26),
    Sketcher.Constraint("Perpendicular", 26, 30),
    Sketcher.Constraint("Horizontal", 78, 2, 81, 2),
    Sketcher.Constraint("Vertical", 64, 2, 79, 2),
    Sketcher.Constraint("Vertical", 63, 2, 80, 2),
    Sketcher.Constraint("Vertical", 62, 2, 81, 2),
    Sketcher.Constraint("Equal", 60, 18),
    Sketcher.Constraint("Diameter", 88, Q("6.8 mm")),
    Sketcher.Constraint("Angle", 68, Q("-2 deg")),
    Sketcher.Constraint("Radius", 1, Q("1.57 mm")),
    Sketcher.Constraint("Radius", 3, Q("0.76 mm")),
    Sketcher.Constraint("Radius", 17, Q("3.17 mm")),
    Sketcher.Constraint("Radius", 27, Q("4.75 mm")),
    Sketcher.Constraint("DistanceX", 16, 1, 16, 2, Q("11.2 mm")),
    Sketcher.Constraint("DistanceY", 15, 2, -1, 1, Q("20 mm")),
    Sketcher.Constraint("DistanceX", -1, 1, 17, 2, Q("20 mm")),
    Sketcher.Constraint("DistanceX", 64, 1, 64, 2, Q("1.18 mm")),
    Sketcher.Constraint("DistanceX", 0, 2, 0, 1, Q("3.085 mm")),
    Sketcher.Constraint("Radius", 5, Q("4.864551 mm")),
    Sketcher.Constraint("DistanceY", 22, 2, 22, 1, Q("3.085399 mm")),
    Sketcher.Constraint("DistanceX", -1, 1, 27, 3, Q("12.435 mm")),
    Sketcher.Constraint("DistanceY", 5, 1, -1, 1, Q("7.685 mm")),
    Sketcher.Constraint("DistanceY", -1, 1, 68, 2, Q("10.033001 mm")),
    Sketcher.Constraint("DistanceX", 6, 1, 6, 2, Q("5.554671 mm")),
    Sketcher.Constraint("DistanceX", 24, 2, 24, 1, Q("0.489942 mm")),
    Sketcher.Constraint("DistanceY", 2, 1, 2, 2, Q("0.462111 mm")),
    Sketcher.Constraint("DistanceY", 28, 1, 28, 2, Q("5.001569 mm")),
    Sketcher.Constraint("DistanceY", 62, 2, 62, 1, Q("11.257021 mm")),
    Sketcher.Constraint("DistanceY", 78, 1, 78, 2, Q("2.95748 mm")),
    Sketcher.Constraint("DistanceY", 82, 2, 82, 1, Q("11.260449 mm")),
    Sketcher.Constraint("DistanceX", 68, 2, -1, 1, Q("13.719899 mm")),
    Sketcher.Constraint("DistanceX", 75, 1, -1, 1, Q("13.816899 mm")),
    Sketcher.Constraint("DistanceX", 20, 2, 20, 1, Q("1.180004 mm")),
    Sketcher.Constraint("DistanceX", 84, 1, 84, 2, Q("11.044615 mm")),
    Sketcher.Constraint("DistanceX", -1, 1, 25, 3, Q("13.811732 mm")),
    Sketcher.Constraint("DistanceY", 79, 3, -1, 1, Q("5.690449 mm")),
])
pad1 = body.newObject("PartDesign::Pad", "Pad")
pad1.Profile = sketch1
pad1.Length = 620
pad1.Reversed = True

doc.recompute()
